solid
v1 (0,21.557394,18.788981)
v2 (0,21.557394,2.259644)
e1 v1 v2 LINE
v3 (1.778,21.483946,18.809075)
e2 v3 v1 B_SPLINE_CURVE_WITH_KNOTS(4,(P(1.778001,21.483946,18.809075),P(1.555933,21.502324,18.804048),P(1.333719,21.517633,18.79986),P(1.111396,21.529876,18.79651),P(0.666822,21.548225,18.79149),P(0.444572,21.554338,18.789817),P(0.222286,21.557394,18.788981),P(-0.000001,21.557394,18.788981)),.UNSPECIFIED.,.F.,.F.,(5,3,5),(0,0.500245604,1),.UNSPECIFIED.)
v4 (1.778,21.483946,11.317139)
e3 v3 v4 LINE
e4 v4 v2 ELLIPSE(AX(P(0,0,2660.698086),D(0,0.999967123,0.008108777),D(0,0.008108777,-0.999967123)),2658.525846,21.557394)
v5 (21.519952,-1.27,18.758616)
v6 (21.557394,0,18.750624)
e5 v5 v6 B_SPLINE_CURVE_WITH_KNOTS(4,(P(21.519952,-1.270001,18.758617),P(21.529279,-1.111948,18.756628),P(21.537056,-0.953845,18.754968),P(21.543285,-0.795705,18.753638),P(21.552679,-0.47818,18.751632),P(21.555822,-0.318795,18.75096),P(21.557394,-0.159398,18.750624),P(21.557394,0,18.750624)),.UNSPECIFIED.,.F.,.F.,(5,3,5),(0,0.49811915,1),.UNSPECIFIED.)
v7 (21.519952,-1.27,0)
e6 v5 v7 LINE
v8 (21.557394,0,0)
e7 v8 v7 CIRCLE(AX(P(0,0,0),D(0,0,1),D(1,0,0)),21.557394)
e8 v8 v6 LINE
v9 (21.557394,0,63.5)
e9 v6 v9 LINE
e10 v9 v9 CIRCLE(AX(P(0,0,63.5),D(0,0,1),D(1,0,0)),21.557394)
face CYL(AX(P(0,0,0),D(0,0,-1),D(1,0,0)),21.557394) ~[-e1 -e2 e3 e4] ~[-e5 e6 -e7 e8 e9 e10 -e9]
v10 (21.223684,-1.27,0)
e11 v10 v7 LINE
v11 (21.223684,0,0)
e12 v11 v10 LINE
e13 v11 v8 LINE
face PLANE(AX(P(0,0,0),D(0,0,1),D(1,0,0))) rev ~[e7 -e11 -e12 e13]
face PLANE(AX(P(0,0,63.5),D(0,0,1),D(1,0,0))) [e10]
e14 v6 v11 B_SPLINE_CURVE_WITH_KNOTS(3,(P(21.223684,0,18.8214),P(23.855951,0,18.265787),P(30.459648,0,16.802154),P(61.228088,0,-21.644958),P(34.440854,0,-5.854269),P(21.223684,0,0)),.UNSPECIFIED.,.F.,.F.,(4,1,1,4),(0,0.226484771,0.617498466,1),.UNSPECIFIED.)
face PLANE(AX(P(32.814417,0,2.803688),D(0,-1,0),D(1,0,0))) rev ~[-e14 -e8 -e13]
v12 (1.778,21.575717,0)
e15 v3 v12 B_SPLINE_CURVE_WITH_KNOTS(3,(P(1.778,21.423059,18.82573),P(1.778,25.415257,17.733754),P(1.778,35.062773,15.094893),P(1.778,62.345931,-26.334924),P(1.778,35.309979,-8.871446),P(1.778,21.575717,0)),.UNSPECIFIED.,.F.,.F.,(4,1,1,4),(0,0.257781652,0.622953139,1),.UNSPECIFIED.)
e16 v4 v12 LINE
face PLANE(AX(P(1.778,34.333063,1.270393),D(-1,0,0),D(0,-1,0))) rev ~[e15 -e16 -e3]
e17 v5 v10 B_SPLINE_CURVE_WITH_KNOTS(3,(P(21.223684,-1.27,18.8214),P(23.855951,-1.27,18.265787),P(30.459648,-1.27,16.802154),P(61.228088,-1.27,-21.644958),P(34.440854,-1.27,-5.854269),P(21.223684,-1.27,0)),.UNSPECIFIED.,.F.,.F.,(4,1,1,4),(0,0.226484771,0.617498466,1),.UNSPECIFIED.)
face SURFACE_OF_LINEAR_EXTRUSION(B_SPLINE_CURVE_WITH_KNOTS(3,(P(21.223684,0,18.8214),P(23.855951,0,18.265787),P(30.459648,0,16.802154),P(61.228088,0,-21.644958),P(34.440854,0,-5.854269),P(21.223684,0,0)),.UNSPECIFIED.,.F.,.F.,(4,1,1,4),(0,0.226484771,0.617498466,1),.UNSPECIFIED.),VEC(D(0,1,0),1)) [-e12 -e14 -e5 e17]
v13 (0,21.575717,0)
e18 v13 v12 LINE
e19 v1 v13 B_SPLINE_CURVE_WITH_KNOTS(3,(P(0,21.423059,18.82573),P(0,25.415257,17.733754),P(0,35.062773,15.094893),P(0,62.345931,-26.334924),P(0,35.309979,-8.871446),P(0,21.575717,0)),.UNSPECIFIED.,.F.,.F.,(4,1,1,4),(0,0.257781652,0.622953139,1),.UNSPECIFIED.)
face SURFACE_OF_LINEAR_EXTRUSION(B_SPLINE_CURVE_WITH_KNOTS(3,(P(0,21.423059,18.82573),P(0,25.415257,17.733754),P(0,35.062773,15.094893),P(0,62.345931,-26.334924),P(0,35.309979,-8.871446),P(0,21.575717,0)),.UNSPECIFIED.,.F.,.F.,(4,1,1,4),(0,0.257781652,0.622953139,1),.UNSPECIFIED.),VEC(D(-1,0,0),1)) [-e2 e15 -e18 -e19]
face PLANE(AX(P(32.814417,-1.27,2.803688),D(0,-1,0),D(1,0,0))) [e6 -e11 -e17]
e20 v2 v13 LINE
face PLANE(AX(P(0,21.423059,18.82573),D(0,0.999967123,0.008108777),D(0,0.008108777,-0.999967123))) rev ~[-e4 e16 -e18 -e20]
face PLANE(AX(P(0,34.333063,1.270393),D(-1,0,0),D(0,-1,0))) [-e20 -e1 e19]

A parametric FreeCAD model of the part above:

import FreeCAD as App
import Part
import Sketcher

V = App.Vector
Q = App.Units.Quantity

doc = App.newDocument("Part")
body = doc.addObject("PartDesign::Body", "Body")

sketch1 = doc.addObject("Sketcher::SketchObject", "Sketch")
body.addObject(sketch1)
sketch1.AttachmentSupport = (doc.XY_Plane, [""])
sketch1.MapMode = "FlatFace"
sketch1.addGeometry(Part.Circle(V(0, 0, 0), V(0, 0, 1), 21.557394), False)
sketch1.addConstraint(Sketcher.Constraint("Coincident", 0, 3, -1, 1))
sketch1.addConstraint(Sketcher.Constraint("Diameter", 0, 43.114787))
pad1 = doc.addObject("PartDesign::Pad", "Pad")
body.addObject(pad1)
pad1.Profile = sketch1
pad1.Length = Q("2.5 in")

sketch2 = doc.addObject("Sketcher::SketchObject", "Sketch001")
body.addObject(sketch2)
sketch2.AttachmentSupport = (doc.YZ_Plane, [""])
sketch2.MapMode = "FlatFace"
sketch2.addGeometry(Part.BSplineCurve([V(21.423059, 18.82573, 0), V(25.415257, 17.733754, 0), V(35.062773, 15.094893, 0), V(62.345931, -26.334924, 0), V(35.309979, -8.871446, 0), V(21.575717, 0, 0)], [4, 1, 1, 4], [0, 0.257781652, 0.622953139, 1], False, 3, [1, 1, 1, 1, 1, 1], False), False)
sketch2.addGeometry(Part.LineSegment(V(21.423059, 18.82573, 0), V(21.575717, 0, 0)), False)
sketch2.addConstraint(Sketcher.Constraint("Block", 0))
sketch2.addConstraint(Sketcher.Constraint("Coincident", 0, 1, 1, 1))
sketch2.addConstraint(Sketcher.Constraint("Coincident", 1, 2, 0, 2))
pad2 = doc.addObject("PartDesign::Pad", "Pad001")
body.addObject(pad2)
pad2.Profile = sketch2
pad2.Length = Q("0.07 in")

sketch3 = doc.addObject("Sketcher::SketchObject", "Sketch002")
body.addObject(sketch3)
sketch3.AttachmentSupport = (doc.XZ_Plane, [""])
sketch3.MapMode = "FlatFace"
sketch3.addGeometry(Part.LineSegment(V(21.223684, 18.8214, 0), V(21.223684, 0, 0)), False)
sketch3.addGeometry(Part.BSplineCurve([V(21.223684, 18.8214, 0), V(23.855951, 18.265787, 0), V(30.459648, 16.802154, 0), V(61.228088, -21.644958, 0), V(34.440854, -5.854269, 0), V(21.223684, 0, 0)], [4, 1, 1, 4], [0, 0.226484771, 0.617498466, 1], False, 3, [1, 1, 1, 1, 1, 1], False), False)
sketch3.addConstraint(Sketcher.Constraint("Block", 1))
sketch3.addConstraint(Sketcher.Constraint("Coincident", 0, 1, 1, 1))
sketch3.addConstraint(Sketcher.Constraint("Coincident", 1, 2, 0, 2))
pad3 = doc.addObject("PartDesign::Pad", "Pad002")
body.addObject(pad3)
pad3.Profile = sketch3
pad3.Length = Q("0.05 in")

doc.recompute()
